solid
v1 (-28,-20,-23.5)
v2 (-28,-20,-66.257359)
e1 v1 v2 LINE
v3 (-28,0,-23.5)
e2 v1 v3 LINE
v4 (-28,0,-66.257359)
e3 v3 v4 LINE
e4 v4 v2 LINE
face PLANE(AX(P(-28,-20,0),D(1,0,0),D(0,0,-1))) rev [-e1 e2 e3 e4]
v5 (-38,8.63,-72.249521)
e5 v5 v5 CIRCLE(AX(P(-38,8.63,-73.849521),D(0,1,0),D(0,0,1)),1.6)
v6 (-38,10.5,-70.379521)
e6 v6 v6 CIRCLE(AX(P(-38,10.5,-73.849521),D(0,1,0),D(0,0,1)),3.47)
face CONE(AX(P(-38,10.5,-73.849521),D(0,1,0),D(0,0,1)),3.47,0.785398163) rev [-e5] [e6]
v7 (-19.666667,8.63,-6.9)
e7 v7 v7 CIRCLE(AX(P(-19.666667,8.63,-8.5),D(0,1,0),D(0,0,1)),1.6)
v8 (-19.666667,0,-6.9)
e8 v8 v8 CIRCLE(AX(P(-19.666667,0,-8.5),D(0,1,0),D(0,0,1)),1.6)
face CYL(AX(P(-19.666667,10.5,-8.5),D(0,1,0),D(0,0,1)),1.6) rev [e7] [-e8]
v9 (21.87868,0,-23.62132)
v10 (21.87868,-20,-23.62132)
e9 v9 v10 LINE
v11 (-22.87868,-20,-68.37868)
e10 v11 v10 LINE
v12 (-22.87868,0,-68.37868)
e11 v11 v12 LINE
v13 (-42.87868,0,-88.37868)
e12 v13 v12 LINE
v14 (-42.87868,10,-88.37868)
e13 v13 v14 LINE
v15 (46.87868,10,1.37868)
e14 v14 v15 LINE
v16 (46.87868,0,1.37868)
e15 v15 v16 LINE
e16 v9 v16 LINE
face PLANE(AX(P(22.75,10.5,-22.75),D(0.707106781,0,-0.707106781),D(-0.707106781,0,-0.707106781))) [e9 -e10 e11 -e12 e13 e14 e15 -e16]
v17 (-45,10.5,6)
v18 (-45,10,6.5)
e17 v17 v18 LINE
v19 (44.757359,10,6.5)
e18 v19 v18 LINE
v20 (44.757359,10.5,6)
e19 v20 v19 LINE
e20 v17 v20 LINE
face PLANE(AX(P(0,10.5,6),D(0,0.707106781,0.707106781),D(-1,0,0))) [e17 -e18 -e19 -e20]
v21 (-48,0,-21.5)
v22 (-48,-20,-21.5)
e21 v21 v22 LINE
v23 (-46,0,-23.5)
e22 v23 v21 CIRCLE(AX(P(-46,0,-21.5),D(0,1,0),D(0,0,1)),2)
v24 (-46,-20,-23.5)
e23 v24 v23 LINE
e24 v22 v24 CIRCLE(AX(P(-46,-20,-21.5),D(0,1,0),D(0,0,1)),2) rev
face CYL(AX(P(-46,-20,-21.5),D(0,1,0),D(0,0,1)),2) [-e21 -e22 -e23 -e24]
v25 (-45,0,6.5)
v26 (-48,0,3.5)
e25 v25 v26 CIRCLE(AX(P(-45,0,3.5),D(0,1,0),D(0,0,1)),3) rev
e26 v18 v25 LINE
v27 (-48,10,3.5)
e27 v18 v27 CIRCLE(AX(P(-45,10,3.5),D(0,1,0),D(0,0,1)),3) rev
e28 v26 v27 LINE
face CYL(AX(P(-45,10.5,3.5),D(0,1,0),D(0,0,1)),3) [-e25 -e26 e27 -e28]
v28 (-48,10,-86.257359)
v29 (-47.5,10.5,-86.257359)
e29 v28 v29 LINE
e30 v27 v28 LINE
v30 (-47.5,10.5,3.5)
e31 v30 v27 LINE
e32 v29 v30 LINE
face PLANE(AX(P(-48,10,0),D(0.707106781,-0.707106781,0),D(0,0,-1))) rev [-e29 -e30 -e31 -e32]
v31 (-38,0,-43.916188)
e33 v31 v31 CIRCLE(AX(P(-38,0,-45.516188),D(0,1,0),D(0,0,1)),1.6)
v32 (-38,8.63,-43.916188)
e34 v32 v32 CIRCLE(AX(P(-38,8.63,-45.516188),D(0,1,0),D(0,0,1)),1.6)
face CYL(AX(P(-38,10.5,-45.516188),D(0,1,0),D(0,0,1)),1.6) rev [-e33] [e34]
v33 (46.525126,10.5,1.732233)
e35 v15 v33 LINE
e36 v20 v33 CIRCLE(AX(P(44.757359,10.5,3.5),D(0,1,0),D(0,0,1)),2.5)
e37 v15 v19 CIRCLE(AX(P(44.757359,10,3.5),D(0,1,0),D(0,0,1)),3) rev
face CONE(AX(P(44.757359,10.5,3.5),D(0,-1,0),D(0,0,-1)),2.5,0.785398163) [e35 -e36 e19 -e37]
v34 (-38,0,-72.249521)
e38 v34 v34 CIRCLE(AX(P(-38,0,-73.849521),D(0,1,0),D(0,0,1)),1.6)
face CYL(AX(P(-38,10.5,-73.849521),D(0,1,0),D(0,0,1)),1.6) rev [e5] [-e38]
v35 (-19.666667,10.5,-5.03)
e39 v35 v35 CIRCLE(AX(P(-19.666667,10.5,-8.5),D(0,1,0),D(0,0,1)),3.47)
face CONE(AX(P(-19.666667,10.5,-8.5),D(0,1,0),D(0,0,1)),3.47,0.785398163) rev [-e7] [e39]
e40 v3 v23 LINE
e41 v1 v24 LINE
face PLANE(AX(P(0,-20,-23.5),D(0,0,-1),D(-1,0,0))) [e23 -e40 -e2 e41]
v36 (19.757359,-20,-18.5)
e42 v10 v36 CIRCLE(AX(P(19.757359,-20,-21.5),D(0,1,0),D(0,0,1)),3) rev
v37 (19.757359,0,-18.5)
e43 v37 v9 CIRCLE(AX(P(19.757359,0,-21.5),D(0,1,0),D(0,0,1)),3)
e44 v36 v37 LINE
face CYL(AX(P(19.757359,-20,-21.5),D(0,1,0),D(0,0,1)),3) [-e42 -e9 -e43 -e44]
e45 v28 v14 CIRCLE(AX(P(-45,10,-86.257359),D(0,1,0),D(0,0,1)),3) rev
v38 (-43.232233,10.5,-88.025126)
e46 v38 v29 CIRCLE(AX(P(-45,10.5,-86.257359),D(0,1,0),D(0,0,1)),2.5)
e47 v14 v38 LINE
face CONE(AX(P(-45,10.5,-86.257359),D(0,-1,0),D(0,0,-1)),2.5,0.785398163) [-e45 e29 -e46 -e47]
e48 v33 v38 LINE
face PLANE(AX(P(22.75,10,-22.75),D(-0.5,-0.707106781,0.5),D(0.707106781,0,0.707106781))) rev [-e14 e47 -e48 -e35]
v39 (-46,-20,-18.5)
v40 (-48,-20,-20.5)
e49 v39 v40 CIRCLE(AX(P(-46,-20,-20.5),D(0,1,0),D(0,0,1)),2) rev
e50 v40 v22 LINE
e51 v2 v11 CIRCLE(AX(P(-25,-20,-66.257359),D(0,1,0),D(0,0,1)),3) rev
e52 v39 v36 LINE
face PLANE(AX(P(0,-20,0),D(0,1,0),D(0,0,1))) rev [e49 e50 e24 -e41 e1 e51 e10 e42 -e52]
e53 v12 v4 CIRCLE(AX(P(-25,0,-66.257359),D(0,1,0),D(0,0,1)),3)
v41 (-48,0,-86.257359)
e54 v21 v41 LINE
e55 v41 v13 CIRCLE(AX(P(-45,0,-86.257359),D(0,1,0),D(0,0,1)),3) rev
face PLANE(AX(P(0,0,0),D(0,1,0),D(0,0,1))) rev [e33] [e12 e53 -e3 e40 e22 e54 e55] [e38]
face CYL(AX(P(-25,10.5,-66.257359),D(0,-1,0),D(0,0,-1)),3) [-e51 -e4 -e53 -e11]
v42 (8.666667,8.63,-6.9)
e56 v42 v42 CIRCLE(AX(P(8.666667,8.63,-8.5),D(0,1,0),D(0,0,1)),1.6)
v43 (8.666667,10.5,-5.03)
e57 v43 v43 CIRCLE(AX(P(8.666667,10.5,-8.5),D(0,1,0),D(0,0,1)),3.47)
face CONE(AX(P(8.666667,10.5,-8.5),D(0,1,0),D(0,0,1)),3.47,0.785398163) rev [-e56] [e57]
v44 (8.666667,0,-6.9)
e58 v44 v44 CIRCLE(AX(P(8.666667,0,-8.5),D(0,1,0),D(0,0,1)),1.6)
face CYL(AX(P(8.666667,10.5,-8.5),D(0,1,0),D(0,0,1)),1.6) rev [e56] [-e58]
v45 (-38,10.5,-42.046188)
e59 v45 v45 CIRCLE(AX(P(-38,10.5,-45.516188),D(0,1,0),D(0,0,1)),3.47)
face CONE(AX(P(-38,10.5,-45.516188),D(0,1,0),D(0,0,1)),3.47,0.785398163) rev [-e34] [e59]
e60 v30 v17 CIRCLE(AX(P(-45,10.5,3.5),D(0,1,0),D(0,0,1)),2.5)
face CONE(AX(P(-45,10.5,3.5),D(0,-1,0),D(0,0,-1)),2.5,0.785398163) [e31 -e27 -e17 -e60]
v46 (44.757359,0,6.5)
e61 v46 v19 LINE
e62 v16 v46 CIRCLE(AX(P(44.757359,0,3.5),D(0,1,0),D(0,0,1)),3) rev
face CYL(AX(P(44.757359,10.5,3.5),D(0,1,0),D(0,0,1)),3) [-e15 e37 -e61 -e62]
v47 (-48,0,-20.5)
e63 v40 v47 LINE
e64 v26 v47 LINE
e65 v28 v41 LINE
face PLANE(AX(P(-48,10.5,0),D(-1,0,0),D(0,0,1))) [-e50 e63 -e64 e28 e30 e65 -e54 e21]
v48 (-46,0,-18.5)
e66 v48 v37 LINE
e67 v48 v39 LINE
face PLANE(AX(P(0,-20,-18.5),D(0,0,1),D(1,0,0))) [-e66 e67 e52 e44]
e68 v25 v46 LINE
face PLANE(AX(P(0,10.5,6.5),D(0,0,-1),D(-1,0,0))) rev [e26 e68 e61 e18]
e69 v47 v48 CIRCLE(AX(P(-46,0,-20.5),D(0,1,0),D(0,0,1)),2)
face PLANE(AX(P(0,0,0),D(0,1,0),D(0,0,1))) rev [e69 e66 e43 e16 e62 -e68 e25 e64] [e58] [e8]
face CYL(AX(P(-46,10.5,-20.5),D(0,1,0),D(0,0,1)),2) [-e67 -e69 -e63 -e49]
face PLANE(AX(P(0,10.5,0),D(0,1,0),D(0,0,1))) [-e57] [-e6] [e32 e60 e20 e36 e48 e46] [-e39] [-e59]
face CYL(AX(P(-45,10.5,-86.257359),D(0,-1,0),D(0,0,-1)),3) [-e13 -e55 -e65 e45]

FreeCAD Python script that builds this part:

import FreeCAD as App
import Part
import Sketcher

V = App.Vector
Q = App.Units.Quantity


def edges_at(feature, points):
    """Names of the edges that pass closest to the given points."""
    edges = feature.Shape.Edges
    near = lambda p: min(range(len(edges)), key=lambda i: edges[i].distToShape(Part.Vertex(*p))[0])
    return sorted({f"Edge{near(p) + 1}" for p in points})


def add_polygon(sketch, points):
    """Adds a closed chain of lines whose ends are joined by coincident constraints."""
    first, n = sketch.GeometryCount, len(points)
    for a, b in zip(points, points[1:] + points[:1]):
        sketch.addGeometry(Part.LineSegment(App.Vector(*a, 0), App.Vector(*b, 0)), False)
    for i in range(n):
        sketch.addConstraint(Sketcher.Constraint("Coincident", first + i, 2, first + (i + 1) % n, 1))

doc = App.newDocument("Part")
body = doc.addObject("PartDesign::Body", "Body")

sketch1 = doc.addObject("Sketcher::SketchObject", "Sketch")
body.addObject(sketch1)
sketch1.AttachmentSupport = (doc.XZ_Plane, [""])
sketch1.MapMode = "FlatFace"
add_polygon(sketch1, [(-48, 6.5), (52, 6.5), (-48, -93.5)])
sketch1.addGeometry(Part.Circle(V(-19.7, -8.5, 0), V(0, 0, 1), 1), False)
sketch1.addGeometry(Part.Circle(V(8.7, -8.5, 0), V(0, 0, 1), 1), False)
sketch1.addGeometry(Part.Circle(V(-38, -45.5, 0), V(0, 0, 1), 1), False)
sketch1.addGeometry(Part.Circle(V(-38, -73.8, 0), V(0, 0, 1), 1), False)
sketch1.addConstraint([
    Sketcher.Constraint("Horizontal", 0),
    Sketcher.Constraint("Vertical", 2),
    Sketcher.Constraint("Equal", 3, 4),
    Sketcher.Constraint("Equal", 4, 5),
    Sketcher.Constraint("Equal", 5, 6),
    Sketcher.Constraint("Horizontal", 3, 3, 4, 3),
    Sketcher.Constraint("Vertical", 5, 3, 6, 3),
    Sketcher.Constraint("Equal", 0, 2),
    Sketcher.Constraint("Diameter", 3, Q("2 mm")),
    Sketcher.Constraint("DistanceX", 0, 1, 0, 2, Q("100 mm")),
    Sketcher.Constraint("DistanceX", 5, 3, -1, 1, Q("38 mm")),
    Sketcher.Constraint("DistanceX", -1, 1, 0, 2, Q("52 mm")),
    Sketcher.Constraint("DistanceY", 4, 3, 0, 2, Q("15 mm")),
    Sketcher.Constraint("DistanceY", 3, 3, -1, 1, Q("8.5 mm")),
    Sketcher.Constraint("DistanceY", 6, 3, -1, 1, Q("73.849521 mm")),
    Sketcher.Constraint("DistanceX", 3, 3, -1, 1, Q("19.666667 mm")),
    Sketcher.Constraint("DistanceX", -1, 1, 4, 3, Q("8.666667 mm")),
    Sketcher.Constraint("DistanceY", 5, 3, -1, 1, Q("45.516188 mm")),
])
pad1 = doc.addObject("PartDesign::Pad", "Pad")
body.addObject(pad1)
pad1.Profile = sketch1
pad1.Length = 10.5
pad1.Reversed = True

sketch2 = doc.addObject("Sketcher::SketchObject", "Sketch001")
body.addObject(sketch2)
sketch2.AttachmentSupport = (doc.XZ_Plane, [""])
sketch2.MapMode = "FlatFace"
add_polygon(sketch2, [(-48, -24), (-48, -18), (27, -18), (-28, -74), (-28, -24)])
sketch2.addConstraint([
    Sketcher.Constraint("Vertical", 0),
    Sketcher.Constraint("Horizontal", 1),
    Sketcher.Constraint("Vertical", 3),
    Sketcher.Constraint("Horizontal", 4),
    Sketcher.Constraint("DistanceX", 1, 1, 1, 2, Q("75 mm")),
    Sketcher.Constraint("DistanceX", 4, 2, 4, 1, Q("20 mm")),
    Sketcher.Constraint("DistanceY", 0, 1, 0, 2, Q("5 mm")),
    Sketcher.Constraint("DistanceY", 3, 1, 3, 2, Q("50 mm")),
    Sketcher.Constraint("DistanceX", 0, 2, -1, 1, Q("48 mm")),
    Sketcher.Constraint("DistanceY", 0, 2, -1, 1, Q("18.5 mm")),
])
pad2 = doc.addObject("PartDesign::Pad", "Pad001")
body.addObject(pad2)
pad2.Profile = sketch2
pad2.Length = 20

sketch3 = doc.addObject("Sketcher::SketchObject", "Sketch002")
body.addObject(sketch3)
sketch3.AttachmentSupport = (doc.XZ_Plane, [""])
sketch3.MapMode = "FlatFace"
sketch3.AttachmentOffset = App.Placement(V(0, 0, -10.5), App.Rotation())
sketch3.addGeometry([
    Part.Circle(V(-38, -73.8, 0), V(0, 0, 1), 1.6),
    Part.Circle(V(-38, -45.5, 0), V(0, 0, 1), 1.6),
    Part.Circle(V(8.7, -8.5, 0), V(0, 0, 1), 1.6),
    Part.Circle(V(-19.7, -8.5, 0), V(0, 0, 1), 1.6),
], False)
sketch3.addConstraint([
    Sketcher.Constraint("Equal", 0, 1),
    Sketcher.Constraint("Equal", 1, 2),
    Sketcher.Constraint("Equal", 2, 3),
    Sketcher.Constraint("Horizontal", 2, 3, 3, 3),
    Sketcher.Constraint("Vertical", 0, 3, 1, 3),
    Sketcher.Constraint("Diameter", 0, Q("3.2 mm")),
    Sketcher.Constraint("DistanceX", 0, 3, -1, 1, Q("38 mm")),
    Sketcher.Constraint("DistanceY", 2, 3, -1, 1, Q("8.5 mm")),
    Sketcher.Constraint("DistanceY", 0, 3, -1, 1, Q("73.849521 mm")),
    Sketcher.Constraint("DistanceY", 1, 3, -1, 1, Q("45.516188 mm")),
    Sketcher.Constraint("DistanceX", -1, 1, 2, 3, Q("8.666667 mm")),
    Sketcher.Constraint("DistanceX", 3, 3, -1, 1, Q("19.666667 mm")),
])
doc.recompute()
hole = doc.addObject("PartDesign::Hole", "Hole")
body.addObject(hole)
hole.Profile = sketch3
hole.ThreadType = "None"
hole.Diameter = 3.2
hole.DepthType = "Dimension"
hole.Depth = 30.5
hole.DrillPoint = "Flat"
hole.HoleCutType = "Countersink"
hole.HoleCutDiameter = 6.94
hole.HoleCutCountersinkAngle = 90
hole.Reversed = True
doc.recompute()

fillet = doc.addObject("PartDesign::Fillet", "Fillet")
body.addObject(fillet)
fillet.Base = (hole, edges_at(hole, [
    (-48, 5.25, 6.5),
    (52, 5.25, 6.5),
    (-28, -10, -73.5),
    (27, -10, -18.5),
    (-48, 5.25, -93.5),
]))
fillet.Radius = 3
doc.recompute()

fillet2 = doc.addObject("PartDesign::Fillet", "Fillet001")
body.addObject(fillet2)
fillet2.Base = (fillet, edges_at(fillet, [(-48, -10, -23.5), (-48, -10, -18.5)]))
fillet2.Radius = 2
doc.recompute()

chamfer = doc.addObject("PartDesign::Chamfer", "Chamfer")
body.addObject(chamfer)
chamfer.Base = (fillet2, edges_at(fillet2, [
    (-48, 10.5, -41.379),
    (2, 10.5, -43.5),
    (-47.121, 10.5, 5.621),
    (47.529, 10.5, 4.648),
    (-0.121, 10.5, 6.5),
    (-46.148, 10.5, -89.029),
]))
chamfer.Size = 0.5

doc.recompute()
